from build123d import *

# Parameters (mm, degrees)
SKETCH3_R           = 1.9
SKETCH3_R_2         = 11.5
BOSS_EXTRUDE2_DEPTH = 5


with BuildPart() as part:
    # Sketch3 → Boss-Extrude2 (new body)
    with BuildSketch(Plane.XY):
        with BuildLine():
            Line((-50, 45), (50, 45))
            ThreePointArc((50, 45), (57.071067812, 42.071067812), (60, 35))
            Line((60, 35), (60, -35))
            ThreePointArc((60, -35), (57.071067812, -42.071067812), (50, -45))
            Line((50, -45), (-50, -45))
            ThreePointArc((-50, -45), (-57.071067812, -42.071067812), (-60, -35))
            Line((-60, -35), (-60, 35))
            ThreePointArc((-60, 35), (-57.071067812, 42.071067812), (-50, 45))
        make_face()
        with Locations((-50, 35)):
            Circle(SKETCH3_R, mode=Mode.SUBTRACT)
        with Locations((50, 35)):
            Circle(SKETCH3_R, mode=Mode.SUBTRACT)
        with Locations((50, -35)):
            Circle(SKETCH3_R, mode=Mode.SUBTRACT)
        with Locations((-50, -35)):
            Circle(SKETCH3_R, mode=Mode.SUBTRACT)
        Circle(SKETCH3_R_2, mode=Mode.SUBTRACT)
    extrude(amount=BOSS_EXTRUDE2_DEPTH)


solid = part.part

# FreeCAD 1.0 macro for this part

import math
import FreeCAD as App
import Part
import Sketcher
from FreeCAD import Vector
Q = App.Units.Quantity

doc = App.newDocument("Part")
body = doc.addObject("PartDesign::Body", "Body")

# Sketch on XY plane
sketch1 = body.newObject("Sketcher::SketchObject", "Sketch")
sketch1.AttachmentSupport = (doc.getObject("XY_Plane"), [""])
sketch1.MapMode = "FlatFace"
sketch1.addGeometry(Part.LineSegment(Vector(50, 45, 0), Vector(-50, 45, 0)), False)
sketch1.addGeometry(Part.ArcOfCircle(Part.Circle(Vector(-50, 35, 0), Vector(0, 0, 1), 10), math.radians(90), math.radians(180)), False)
sketch1.addGeometry(Part.LineSegment(Vector(-60, 35, 0), Vector(-60, -35, 0)), False)
sketch1.addGeometry(Part.ArcOfCircle(Part.Circle(Vector(-50, -35, 0), Vector(0, 0, 1), 10), math.radians(180), math.radians(270)), False)
sketch1.addGeometry(Part.LineSegment(Vector(-50, -45, 0), Vector(50, -45, 0)), False)
sketch1.addGeometry(Part.ArcOfCircle(Part.Circle(Vector(50, -35, 0), Vector(0, 0, 1), 10), math.radians(-90), math.radians(0)), False)
sketch1.addGeometry(Part.LineSegment(Vector(60, -35, 0), Vector(60, 35, 0)), False)
sketch1.addGeometry(Part.ArcOfCircle(Part.Circle(Vector(50, 35, 0), Vector(0, 0, 1), 10), math.radians(0), math.radians(90)), False)
sketch1.addGeometry(Part.Circle(Vector(50, -35, 0), Vector(0, 0, 1), 1.9), False)
sketch1.addGeometry(Part.Circle(Vector(-50, -35, 0), Vector(0, 0, 1), 1.9), False)
sketch1.addGeometry(Part.Circle(Vector(50, 35, 0), Vector(0, 0, 1), 1.9), False)
sketch1.addGeometry(Part.Circle(Vector(0, 0, 0), Vector(0, 0, 1), 11.5), False)
sketch1.addGeometry(Part.Circle(Vector(-50, 35, 0), Vector(0, 0, 1), 1.9), False)
sketch1.addConstraint(Sketcher.Constraint("Tangent", 0, 2, 1, 1))
sketch1.addConstraint(Sketcher.Constraint("Tangent", 1, 2, 2, 1))
sketch1.addConstraint(Sketcher.Constraint("Tangent", 2, 2, 3, 1))
sketch1.addConstraint(Sketcher.Constraint("Tangent", 3, 2, 4, 1))
sketch1.addConstraint(Sketcher.Constraint("Tangent", 4, 2, 5, 1))
sketch1.addConstraint(Sketcher.Constraint("Tangent", 5, 2, 6, 1))
sketch1.addConstraint(Sketcher.Constraint("Tangent", 6, 2, 7, 1))
sketch1.addConstraint(Sketcher.Constraint("Tangent", 7, 2, 0, 1))
sketch1.addConstraint(Sketcher.Constraint("Horizontal", 0))
sketch1.addConstraint(Sketcher.Constraint("Vertical", 2))
sketch1.addConstraint(Sketcher.Constraint("Horizontal", 4))
sketch1.addConstraint(Sketcher.Constraint("Vertical", 6))
sketch1.addConstraint(Sketcher.Constraint("Coincident", 11, 3, -1, 1))
sketch1.addConstraint(Sketcher.Constraint("Coincident", 8, 3, 5, 3))
sketch1.addConstraint(Sketcher.Constraint("Coincident", 9, 3, 3, 3))
sketch1.addConstraint(Sketcher.Constraint("Coincident", 10, 3, 7, 3))
sketch1.addConstraint(Sketcher.Constraint("Coincident", 12, 3, 1, 3))
sketch1.addConstraint(Sketcher.Constraint("Equal", 1, 3))
sketch1.addConstraint(Sketcher.Constraint("Equal", 3, 5))
sketch1.addConstraint(Sketcher.Constraint("Equal", 5, 7))
sketch1.addConstraint(Sketcher.Constraint("Equal", 8, 9))
sketch1.addConstraint(Sketcher.Constraint("Equal", 9, 10))
sketch1.addConstraint(Sketcher.Constraint("Equal", 10, 12))
sketch1.addConstraint(Sketcher.Constraint("Symmetric", 1, 3, 5, 3, -1, 1))
sketch1.addConstraint(Sketcher.Constraint("Diameter", 11, Q("23 mm")))
sketch1.addConstraint(Sketcher.Constraint("Radius", 1, Q("10 mm")))
sketch1.addConstraint(Sketcher.Constraint("Diameter", 8, Q("3.8 mm")))
sketch1.addConstraint(Sketcher.Constraint("DistanceX", 0, 2, 0, 1, Q("100 mm")))
sketch1.addConstraint(Sketcher.Constraint("DistanceY", 2, 2, 2, 1, Q("70 mm")))
pad1 = body.newObject("PartDesign::Pad", "Pad")
pad1.Profile = sketch1
pad1.Length = 5

doc.recompute()
